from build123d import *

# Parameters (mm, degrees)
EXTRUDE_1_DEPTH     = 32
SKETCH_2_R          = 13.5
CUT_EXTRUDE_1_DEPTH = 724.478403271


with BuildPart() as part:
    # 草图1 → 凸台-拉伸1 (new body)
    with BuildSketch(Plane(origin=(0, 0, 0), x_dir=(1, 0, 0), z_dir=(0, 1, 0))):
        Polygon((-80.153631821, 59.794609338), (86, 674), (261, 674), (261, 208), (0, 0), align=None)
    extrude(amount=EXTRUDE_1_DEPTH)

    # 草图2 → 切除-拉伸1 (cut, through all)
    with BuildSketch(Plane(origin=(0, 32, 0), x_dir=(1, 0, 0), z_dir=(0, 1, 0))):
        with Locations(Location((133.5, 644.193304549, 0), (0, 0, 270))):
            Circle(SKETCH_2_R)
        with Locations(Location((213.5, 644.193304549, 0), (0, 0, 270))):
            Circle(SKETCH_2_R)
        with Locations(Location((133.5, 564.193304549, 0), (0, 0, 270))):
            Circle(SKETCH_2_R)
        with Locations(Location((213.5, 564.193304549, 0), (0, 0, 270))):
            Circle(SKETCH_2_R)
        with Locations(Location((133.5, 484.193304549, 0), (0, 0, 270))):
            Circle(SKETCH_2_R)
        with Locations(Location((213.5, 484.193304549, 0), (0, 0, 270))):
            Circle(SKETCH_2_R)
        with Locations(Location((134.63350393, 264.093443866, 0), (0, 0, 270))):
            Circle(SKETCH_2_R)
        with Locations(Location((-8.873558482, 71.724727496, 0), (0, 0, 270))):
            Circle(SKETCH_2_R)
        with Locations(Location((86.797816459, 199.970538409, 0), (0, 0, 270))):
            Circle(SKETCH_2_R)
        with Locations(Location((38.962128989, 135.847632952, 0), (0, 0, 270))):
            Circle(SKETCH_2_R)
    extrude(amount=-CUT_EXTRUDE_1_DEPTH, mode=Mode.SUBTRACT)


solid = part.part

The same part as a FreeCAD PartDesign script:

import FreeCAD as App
import Part
import Sketcher
from FreeCAD import Vector
Q = App.Units.Quantity

doc = App.newDocument("Part")
params = doc.addObject("Spreadsheet::Sheet", "Params")
for row, (alias, value) in enumerate([
    ("sketch1_width", "175 mm"),
    ("sketch1_height", "466 mm"),
    ("sketch1_length", "100 mm"),
    ("pad1_length", "32 mm"),
    ("sketch2_diameter", "27 mm"),
], start=1):
    params.set(f"A{row}", alias)
    params.set(f"B{row}", "=" + value)
    params.setAlias(f"B{row}", alias)

body = doc.addObject("PartDesign::Body", "Body")

sketch1 = doc.addObject("Sketcher::SketchObject", "Sketch")
body.addObject(sketch1)
sketch1.AttachmentSupport = (doc.XZ_Plane, [""])
sketch1.MapMode = "FlatFace"
sketch1.addGeometry([
    Part.LineSegment(Vector(86, -674, 0), Vector(-80, -60, 0)),
    Part.LineSegment(Vector(-80, -60, 0), Vector(0, 0, 0)),
    Part.LineSegment(Vector(0, 0, 0), Vector(261, -208, 0)),
    Part.LineSegment(Vector(261, -208, 0), Vector(261, -674, 0)),
    Part.LineSegment(Vector(261, -674, 0), Vector(86, -674, 0)),
], False)
sketch1.addConstraint([
    Sketcher.Constraint("Coincident", 0, 2, 1, 1),
    Sketcher.Constraint("Coincident", 1, 2, 2, 1),
    Sketcher.Constraint("Coincident", 2, 2, 3, 1),
    Sketcher.Constraint("Coincident", 3, 2, 4, 1),
    Sketcher.Constraint("Coincident", 4, 2, 0, 1),
    Sketcher.Constraint("Vertical", 3),
    Sketcher.Constraint("Horizontal", 4),
    Sketcher.Constraint("Coincident", 1, 2, -1, 1),
    Sketcher.Constraint("DistanceX", 4, 2, 4, 1, Q("175 mm")),
    Sketcher.Constraint("DistanceY", 3, 2, 3, 1, Q("466 mm")),
    Sketcher.Constraint("Distance", 1, Q("100 mm")),
    Sketcher.Constraint("DistanceX", -1, 1, 2, 2, Q("261 mm")),
    Sketcher.Constraint("DistanceY", 2, 2, -1, 1, Q("208 mm")),
    Sketcher.Constraint("Distance", 0, Q("636.282399 mm")),
])
sketch1.setExpression("Constraints[8]", "Params.sketch1_width")
sketch1.setExpression("Constraints[9]", "Params.sketch1_height")
sketch1.setExpression("Constraints[10]", "Params.sketch1_length")
pad1 = doc.addObject("PartDesign::Pad", "Pad")
body.addObject(pad1)
pad1.Profile = sketch1
pad1.setExpression("Length", "Params.pad1_length")
pad1.Reversed = True

sketch2 = doc.addObject("Sketcher::SketchObject", "Sketch001")
body.addObject(sketch2)
sketch2.AttachmentSupport = (doc.XZ_Plane, [""])
sketch2.MapMode = "FlatFace"
sketch2.AttachmentOffset = App.Placement(Vector(0, 0, -32), App.Rotation())
sketch2.addGeometry([
    Part.Circle(Vector(134, -644, 0), Vector(0, 0, 1), 14),
    Part.Circle(Vector(214, -644, 0), Vector(0, 0, 1), 14),
    Part.Circle(Vector(134, -564, 0), Vector(0, 0, 1), 14),
    Part.Circle(Vector(214, -564, 0), Vector(0, 0, 1), 14),
    Part.Circle(Vector(134, -484, 0), Vector(0, 0, 1), 14),
    Part.Circle(Vector(214, -484, 0), Vector(0, 0, 1), 14),
    Part.Circle(Vector(135, -264, 0), Vector(0, 0, 1), 14),
    Part.Circle(Vector(-9, -72, 0), Vector(0, 0, 1), 14),
    Part.Circle(Vector(87, -200, 0), Vector(0, 0, 1), 14),
    Part.Circle(Vector(39, -136, 0), Vector(0, 0, 1), 14),
], False)
sketch2.addConstraint([
    Sketcher.Constraint("Equal", 0, 1),
    Sketcher.Constraint("Equal", 1, 2),
    Sketcher.Constraint("Equal", 2, 3),
    Sketcher.Constraint("Equal", 3, 4),
    Sketcher.Constraint("Equal", 4, 5),
    Sketcher.Constraint("Equal", 5, 6),
    Sketcher.Constraint("Equal", 6, 7),
    Sketcher.Constraint("Equal", 7, 8),
    Sketcher.Constraint("Equal", 8, 9),
    Sketcher.Constraint("Horizontal", 0, 3, 1, 3),
    Sketcher.Constraint("Horizontal", 2, 3, 3, 3),
    Sketcher.Constraint("Horizontal", 4, 3, 5, 3),
    Sketcher.Constraint("Vertical", 0, 3, 2, 3),
    Sketcher.Constraint("Vertical", 1, 3, 3, 3),
    Sketcher.Constraint("Vertical", 2, 3, 4, 3),
    Sketcher.Constraint("Vertical", 3, 3, 5, 3),
    Sketcher.Constraint("Diameter", 0, Q("27 mm")),
    Sketcher.Constraint("DistanceX", 0, 3, 1, 3, Q("80 mm")),
    Sketcher.Constraint("DistanceY", 0, 3, 2, 3, Q("80 mm")),
    Sketcher.Constraint("DistanceY", 2, 3, 4, 3, Q("80 mm")),
    Sketcher.Constraint("DistanceX", -1, 1, 0, 3, Q("133.5 mm")),
    Sketcher.Constraint("DistanceX", 7, 3, -1, 1, Q("8.873558 mm")),
    Sketcher.Constraint("DistanceY", 8, 3, -1, 1, Q("199.970538 mm")),
    Sketcher.Constraint("DistanceX", -1, 1, 9, 3, Q("38.962129 mm")),
    Sketcher.Constraint("DistanceY", 4, 3, 6, 3, Q("220.099861 mm")),
    Sketcher.Constraint("DistanceY", 8, 3, 7, 3, Q("128.245811 mm")),
    Sketcher.Constraint("DistanceY", 6, 3, 9, 3, Q("128.245811 mm")),
    Sketcher.Constraint("DistanceY", 0, 3, -1, 1, Q("644.193305 mm")),
    Sketcher.Constraint("DistanceX", -1, 1, 6, 3, Q("134.633504 mm")),
    Sketcher.Constraint("DistanceX", -1, 1, 8, 3, Q("86.797816 mm")),
])
sketch2.setExpression("Constraints[16]", "Params.sketch2_diameter")
pocket1 = doc.addObject("PartDesign::Pocket", "Pocket")
body.addObject(pocket1)
pocket1.Profile = sketch2
pocket1.Type = "ThroughAll"
pocket1.Reversed = True

doc.recompute()
